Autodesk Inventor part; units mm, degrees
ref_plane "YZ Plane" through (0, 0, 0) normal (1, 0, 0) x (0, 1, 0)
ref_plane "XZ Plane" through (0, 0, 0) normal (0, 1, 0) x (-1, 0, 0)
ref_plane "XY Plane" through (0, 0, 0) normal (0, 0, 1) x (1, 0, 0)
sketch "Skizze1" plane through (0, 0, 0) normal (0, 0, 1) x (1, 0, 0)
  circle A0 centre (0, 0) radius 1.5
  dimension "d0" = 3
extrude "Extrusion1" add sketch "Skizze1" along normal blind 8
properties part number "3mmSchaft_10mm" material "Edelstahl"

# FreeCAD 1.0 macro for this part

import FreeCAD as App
import Part
import Sketcher
Q = App.Units.Quantity

doc = App.newDocument("Part")
body = doc.addObject("PartDesign::Body", "Body")

# Sketch on XY plane
sketch1 = body.newObject("Sketcher::SketchObject", "Sketch")
sketch1.AttachmentSupport = (doc.getObject("XY_Plane"), [""])
sketch1.MapMode = "FlatFace"
sketch1.addGeometry(Part.Circle(App.Vector(0, 0, 0), App.Vector(0, 0, 1), 1.5), False)
sketch1.addConstraint([
    Sketcher.Constraint("Coincident", 0, 3, -1, 1),
    Sketcher.Constraint("Diameter", 0, Q("3 mm")),
])
pad1 = body.newObject("PartDesign::Pad", "Pad")
pad1.Profile = sketch1
pad1.Length = 8

doc.recompute()
